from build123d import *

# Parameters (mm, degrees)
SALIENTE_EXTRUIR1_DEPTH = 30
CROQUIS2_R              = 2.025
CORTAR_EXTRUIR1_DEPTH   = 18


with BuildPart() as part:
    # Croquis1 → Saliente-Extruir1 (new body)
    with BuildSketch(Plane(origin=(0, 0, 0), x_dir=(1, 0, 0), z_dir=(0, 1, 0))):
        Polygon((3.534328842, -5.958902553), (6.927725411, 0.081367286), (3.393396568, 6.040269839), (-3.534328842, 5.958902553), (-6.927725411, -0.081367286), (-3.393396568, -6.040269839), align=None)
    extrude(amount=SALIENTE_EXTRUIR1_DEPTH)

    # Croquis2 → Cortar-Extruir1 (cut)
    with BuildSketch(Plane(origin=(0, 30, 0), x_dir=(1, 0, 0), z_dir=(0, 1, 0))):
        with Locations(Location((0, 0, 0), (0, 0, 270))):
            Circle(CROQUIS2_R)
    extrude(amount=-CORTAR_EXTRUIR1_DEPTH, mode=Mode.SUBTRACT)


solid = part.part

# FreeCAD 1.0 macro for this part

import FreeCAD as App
import Part
import Sketcher

V = App.Vector
Q = App.Units.Quantity


def add_polygon(sketch, points):
    """Adds a closed chain of lines whose ends are joined by coincident constraints."""
    first, n = sketch.GeometryCount, len(points)
    for a, b in zip(points, points[1:] + points[:1]):
        sketch.addGeometry(Part.LineSegment(App.Vector(*a, 0), App.Vector(*b, 0)), False)
    for i in range(n):
        sketch.addConstraint(Sketcher.Constraint("Coincident", first + i, 2, first + (i + 1) % n, 1))

doc = App.newDocument("Part")
params = doc.addObject("Spreadsheet::Sheet", "Params")
for row, (alias, value) in enumerate([
    ("pad1_length", "30 mm"),
    ("sketch2_diameter", "4.05 mm"),
    ("pocket1_length", "18 mm"),
], start=1):
    params.set(f"A{row}", alias)
    params.set(f"B{row}", "=" + value)
    params.setAlias(f"B{row}", alias)

body = doc.addObject("PartDesign::Body", "Body")

# Sketch on XZ plane
sketch1 = body.newObject("Sketcher::SketchObject", "Sketch")
sketch1.AttachmentSupport = (doc.getObject("XZ_Plane"), [""])
sketch1.MapMode = "FlatFace"
add_polygon(sketch1, [(3.534329, 5.958903), (6.927725, -0.081367), (3.393397, -6.04027), (-3.534329, -5.958903), (-6.927725, 0.081367), (-3.393397, 6.04027)])  # lines 0-5
sketch1.addConstraint(Sketcher.Constraint("Symmetric", 0, 2, 3, 2, -1, 1))
sketch1.addConstraint(Sketcher.Constraint("Symmetric", 1, 2, 4, 2, -1, 1))
sketch1.addConstraint(Sketcher.Constraint("Symmetric", 2, 2, 5, 2, -1, 1))
sketch1.addConstraint(Sketcher.Constraint("Equal", 0, 1))
sketch1.addConstraint(Sketcher.Constraint("Equal", 1, 2))
sketch1.addConstraint(Sketcher.Constraint("DistanceY", 1, 2, -1, 1, Q("6.04027 mm")))
sketch1.addConstraint(Sketcher.Constraint("DistanceX", 2, 2, -1, 1, Q("3.534329 mm")))
sketch1.addConstraint(Sketcher.Constraint("DistanceX", 1, 2, 0, 2, Q("3.534329 mm")))
sketch1.addConstraint(Sketcher.Constraint("DistanceY", 2, 2, 3, 2, Q("6.04027 mm")))
pad1 = body.newObject("PartDesign::Pad", "Pad")
pad1.Profile = sketch1
pad1.setExpression("Length", "Params.pad1_length")
pad1.Reversed = True

# Sketch on XZ plane
sketch2 = body.newObject("Sketcher::SketchObject", "Sketch001")
sketch2.AttachmentSupport = (doc.getObject("XZ_Plane"), [""])
sketch2.MapMode = "FlatFace"
sketch2.AttachmentOffset = App.Placement(V(0, 0, -30), App.Rotation())
sketch2.addGeometry(Part.Circle(V(0, 0, 0), V(0, 0, 1), 2.025), False)
sketch2.addConstraint(Sketcher.Constraint("Coincident", 0, 3, -1, 1))
sketch2.addConstraint(Sketcher.Constraint("Diameter", 0, Q("4.05 mm")))
sketch2.setExpression("Constraints[1]", "Params.sketch2_diameter")
pocket1 = body.newObject("PartDesign::Pocket", "Pocket")
pocket1.Profile = sketch2
pocket1.setExpression("Length", "Params.pocket1_length")
pocket1.Reversed = True

doc.recompute()
